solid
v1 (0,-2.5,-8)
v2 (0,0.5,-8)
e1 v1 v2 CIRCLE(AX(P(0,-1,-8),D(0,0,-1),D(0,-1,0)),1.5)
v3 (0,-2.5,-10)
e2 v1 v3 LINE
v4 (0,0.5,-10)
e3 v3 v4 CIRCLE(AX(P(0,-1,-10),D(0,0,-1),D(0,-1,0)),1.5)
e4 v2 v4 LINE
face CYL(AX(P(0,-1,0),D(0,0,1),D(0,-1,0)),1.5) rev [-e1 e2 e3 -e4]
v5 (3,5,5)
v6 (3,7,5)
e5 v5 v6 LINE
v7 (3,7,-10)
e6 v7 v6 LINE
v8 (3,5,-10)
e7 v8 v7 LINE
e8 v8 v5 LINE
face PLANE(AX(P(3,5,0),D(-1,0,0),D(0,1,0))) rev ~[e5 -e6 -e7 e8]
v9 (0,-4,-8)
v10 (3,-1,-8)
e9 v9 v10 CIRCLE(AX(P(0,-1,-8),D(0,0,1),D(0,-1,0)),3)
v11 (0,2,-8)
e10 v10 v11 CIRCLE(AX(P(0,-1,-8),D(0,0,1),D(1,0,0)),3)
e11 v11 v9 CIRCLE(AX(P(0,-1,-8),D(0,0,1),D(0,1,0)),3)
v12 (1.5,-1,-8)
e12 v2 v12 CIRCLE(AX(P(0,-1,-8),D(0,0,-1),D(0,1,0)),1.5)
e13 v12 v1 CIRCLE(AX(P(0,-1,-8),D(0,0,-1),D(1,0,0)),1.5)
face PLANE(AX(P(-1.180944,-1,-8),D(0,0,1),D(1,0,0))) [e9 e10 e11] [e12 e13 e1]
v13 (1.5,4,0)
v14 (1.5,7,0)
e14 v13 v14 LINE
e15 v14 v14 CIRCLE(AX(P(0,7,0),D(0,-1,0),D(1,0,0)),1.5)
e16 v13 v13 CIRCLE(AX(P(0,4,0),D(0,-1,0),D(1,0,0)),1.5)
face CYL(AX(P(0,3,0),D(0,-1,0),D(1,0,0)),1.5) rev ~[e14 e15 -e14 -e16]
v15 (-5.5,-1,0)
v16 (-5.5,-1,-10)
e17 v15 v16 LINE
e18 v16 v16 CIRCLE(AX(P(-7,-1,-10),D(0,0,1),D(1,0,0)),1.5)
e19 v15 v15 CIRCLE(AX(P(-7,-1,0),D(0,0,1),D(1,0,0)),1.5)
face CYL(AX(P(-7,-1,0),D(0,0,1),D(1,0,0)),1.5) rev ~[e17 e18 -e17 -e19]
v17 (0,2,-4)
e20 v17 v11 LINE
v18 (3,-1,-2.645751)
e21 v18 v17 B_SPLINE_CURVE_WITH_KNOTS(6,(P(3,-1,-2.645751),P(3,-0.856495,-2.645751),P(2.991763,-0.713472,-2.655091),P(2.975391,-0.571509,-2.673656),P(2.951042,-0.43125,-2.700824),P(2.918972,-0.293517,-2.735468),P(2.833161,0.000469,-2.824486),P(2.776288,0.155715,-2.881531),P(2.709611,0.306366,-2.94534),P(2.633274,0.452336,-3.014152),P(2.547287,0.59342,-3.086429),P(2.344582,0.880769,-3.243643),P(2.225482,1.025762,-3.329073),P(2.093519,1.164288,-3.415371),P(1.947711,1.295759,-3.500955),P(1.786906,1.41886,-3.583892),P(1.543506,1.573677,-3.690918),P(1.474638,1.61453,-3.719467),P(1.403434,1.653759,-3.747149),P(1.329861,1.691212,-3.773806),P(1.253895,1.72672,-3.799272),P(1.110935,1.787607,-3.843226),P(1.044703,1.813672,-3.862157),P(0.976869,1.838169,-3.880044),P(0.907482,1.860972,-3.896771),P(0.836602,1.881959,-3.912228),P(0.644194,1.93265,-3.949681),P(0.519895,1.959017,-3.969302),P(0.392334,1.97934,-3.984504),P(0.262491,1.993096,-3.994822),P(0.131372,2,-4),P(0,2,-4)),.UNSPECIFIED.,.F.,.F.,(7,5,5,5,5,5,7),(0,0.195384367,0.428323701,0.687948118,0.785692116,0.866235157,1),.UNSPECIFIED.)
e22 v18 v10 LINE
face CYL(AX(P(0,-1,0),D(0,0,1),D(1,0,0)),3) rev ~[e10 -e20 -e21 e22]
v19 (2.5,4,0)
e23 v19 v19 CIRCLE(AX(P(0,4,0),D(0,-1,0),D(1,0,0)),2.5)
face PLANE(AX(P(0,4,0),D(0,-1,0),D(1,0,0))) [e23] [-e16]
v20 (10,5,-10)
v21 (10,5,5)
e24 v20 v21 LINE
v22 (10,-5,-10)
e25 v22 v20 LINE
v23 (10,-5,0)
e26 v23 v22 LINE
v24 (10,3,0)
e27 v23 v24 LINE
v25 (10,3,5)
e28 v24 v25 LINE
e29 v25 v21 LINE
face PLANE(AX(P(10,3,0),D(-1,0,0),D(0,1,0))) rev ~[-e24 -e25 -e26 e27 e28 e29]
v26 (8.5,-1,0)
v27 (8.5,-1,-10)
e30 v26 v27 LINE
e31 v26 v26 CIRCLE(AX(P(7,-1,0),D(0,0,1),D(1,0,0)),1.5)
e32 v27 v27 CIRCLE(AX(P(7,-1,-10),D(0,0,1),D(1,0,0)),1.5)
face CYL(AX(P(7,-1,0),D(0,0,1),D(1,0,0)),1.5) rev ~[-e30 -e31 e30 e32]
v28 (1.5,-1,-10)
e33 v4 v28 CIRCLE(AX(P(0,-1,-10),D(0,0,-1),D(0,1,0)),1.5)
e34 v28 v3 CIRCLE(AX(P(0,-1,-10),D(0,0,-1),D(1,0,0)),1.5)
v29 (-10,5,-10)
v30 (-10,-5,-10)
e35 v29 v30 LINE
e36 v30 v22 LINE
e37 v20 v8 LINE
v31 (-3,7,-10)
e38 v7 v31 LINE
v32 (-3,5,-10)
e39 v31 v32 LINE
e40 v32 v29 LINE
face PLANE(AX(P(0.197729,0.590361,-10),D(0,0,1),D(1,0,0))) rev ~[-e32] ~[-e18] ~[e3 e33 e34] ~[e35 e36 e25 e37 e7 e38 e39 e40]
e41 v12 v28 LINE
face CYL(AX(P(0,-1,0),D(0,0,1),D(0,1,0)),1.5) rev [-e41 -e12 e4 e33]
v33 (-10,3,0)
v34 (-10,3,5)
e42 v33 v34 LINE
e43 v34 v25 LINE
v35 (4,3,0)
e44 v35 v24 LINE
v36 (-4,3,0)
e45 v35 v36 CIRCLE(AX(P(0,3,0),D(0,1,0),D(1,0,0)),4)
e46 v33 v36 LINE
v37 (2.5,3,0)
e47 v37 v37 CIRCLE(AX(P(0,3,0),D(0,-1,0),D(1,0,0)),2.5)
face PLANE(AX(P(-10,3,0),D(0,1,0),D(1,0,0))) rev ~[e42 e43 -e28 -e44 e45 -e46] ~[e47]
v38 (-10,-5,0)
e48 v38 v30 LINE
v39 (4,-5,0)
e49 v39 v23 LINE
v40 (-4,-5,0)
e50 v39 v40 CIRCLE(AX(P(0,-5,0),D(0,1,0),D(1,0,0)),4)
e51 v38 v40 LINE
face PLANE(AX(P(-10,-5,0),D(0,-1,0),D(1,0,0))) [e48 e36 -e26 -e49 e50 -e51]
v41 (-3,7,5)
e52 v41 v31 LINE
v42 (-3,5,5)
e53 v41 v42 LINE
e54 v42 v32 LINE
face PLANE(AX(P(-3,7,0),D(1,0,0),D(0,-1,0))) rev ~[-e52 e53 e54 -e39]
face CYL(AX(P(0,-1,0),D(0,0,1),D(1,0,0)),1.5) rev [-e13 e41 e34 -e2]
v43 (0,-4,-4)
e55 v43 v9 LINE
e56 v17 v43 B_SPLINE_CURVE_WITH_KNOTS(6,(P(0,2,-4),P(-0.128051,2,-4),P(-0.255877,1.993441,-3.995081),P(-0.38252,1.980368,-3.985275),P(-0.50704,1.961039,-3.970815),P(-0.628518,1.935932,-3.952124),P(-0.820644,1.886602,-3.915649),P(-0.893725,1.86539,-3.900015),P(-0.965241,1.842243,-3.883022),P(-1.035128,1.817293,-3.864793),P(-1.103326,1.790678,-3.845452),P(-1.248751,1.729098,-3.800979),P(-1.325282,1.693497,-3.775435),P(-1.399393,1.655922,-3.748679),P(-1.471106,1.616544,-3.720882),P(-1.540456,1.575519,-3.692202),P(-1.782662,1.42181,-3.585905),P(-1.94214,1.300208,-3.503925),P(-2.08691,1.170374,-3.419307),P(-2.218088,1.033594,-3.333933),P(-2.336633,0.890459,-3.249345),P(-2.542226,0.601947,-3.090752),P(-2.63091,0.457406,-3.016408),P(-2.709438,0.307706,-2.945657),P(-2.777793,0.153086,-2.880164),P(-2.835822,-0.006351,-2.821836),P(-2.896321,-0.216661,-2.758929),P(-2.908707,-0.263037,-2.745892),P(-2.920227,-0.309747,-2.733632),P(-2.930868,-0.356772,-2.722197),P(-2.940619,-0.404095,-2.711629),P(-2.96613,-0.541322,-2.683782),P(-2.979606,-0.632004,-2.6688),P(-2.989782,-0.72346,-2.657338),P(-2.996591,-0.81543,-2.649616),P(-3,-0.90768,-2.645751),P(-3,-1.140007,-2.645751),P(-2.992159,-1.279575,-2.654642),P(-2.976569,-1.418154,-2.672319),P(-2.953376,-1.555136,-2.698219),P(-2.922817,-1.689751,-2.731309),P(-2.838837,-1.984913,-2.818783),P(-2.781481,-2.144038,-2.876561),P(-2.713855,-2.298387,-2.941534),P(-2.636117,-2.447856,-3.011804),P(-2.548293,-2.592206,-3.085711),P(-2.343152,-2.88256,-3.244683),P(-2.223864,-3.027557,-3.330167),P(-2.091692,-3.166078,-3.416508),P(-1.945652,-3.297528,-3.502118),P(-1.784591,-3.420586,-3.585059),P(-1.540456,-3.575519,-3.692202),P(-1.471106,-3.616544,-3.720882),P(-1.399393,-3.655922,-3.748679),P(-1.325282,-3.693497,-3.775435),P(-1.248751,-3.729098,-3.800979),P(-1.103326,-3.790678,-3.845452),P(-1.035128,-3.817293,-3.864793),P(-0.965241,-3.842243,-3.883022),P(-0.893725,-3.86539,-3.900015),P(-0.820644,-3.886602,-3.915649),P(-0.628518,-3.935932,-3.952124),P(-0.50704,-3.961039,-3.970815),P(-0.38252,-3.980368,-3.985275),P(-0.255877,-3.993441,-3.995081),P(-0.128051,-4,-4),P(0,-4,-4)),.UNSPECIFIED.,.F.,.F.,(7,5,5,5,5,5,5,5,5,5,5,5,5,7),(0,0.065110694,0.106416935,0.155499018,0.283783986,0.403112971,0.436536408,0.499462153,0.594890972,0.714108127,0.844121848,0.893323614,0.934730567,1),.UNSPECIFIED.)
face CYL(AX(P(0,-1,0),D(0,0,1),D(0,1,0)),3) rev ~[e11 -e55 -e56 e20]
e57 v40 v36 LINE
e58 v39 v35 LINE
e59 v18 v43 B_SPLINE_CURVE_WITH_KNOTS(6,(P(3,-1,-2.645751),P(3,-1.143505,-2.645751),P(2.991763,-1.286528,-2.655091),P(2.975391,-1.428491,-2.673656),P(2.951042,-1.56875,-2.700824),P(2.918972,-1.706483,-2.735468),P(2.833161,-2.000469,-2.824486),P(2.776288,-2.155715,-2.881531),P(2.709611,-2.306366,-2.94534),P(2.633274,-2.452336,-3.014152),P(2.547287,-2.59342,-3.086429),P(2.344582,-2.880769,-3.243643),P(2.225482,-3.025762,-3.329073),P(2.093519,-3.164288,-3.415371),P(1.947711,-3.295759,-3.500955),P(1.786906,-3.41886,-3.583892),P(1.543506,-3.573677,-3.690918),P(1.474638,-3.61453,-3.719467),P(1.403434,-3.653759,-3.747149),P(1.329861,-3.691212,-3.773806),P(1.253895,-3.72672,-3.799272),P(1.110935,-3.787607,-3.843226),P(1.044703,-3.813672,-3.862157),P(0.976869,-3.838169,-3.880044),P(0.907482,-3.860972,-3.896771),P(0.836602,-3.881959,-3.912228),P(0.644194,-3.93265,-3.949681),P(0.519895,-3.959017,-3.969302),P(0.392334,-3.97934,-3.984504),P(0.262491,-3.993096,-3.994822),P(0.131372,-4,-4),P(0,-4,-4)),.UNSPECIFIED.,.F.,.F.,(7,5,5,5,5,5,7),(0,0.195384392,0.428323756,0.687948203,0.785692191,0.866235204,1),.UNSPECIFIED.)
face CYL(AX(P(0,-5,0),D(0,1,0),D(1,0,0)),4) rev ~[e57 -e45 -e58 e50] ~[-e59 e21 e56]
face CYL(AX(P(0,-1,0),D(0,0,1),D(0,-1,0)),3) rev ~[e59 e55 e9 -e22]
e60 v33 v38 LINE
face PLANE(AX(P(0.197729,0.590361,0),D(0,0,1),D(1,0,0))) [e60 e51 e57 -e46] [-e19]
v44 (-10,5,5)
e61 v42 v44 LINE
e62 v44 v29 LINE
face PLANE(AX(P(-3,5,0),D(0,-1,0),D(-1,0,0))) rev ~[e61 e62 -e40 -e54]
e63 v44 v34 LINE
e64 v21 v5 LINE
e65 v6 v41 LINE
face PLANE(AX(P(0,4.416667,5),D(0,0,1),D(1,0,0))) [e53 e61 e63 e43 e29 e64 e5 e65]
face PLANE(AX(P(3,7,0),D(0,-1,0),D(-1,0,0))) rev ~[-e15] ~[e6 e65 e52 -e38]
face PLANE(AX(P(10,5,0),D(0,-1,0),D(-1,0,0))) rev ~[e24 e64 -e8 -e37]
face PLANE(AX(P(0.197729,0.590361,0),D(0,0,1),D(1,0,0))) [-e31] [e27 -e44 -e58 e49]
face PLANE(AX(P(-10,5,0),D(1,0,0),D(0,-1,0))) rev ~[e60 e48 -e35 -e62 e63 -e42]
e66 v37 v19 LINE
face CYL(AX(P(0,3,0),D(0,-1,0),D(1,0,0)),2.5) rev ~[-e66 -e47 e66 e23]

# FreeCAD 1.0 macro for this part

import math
import FreeCAD as App
import Part
import Sketcher

V = App.Vector

doc = App.newDocument("Part")
params = doc.addObject("Spreadsheet::Sheet", "Params")
for row, (alias, value) in enumerate([
    ("sketch1_diameter", "3 mm"),
    ("sketch1_width", "7 mm"),
    ("sketch1_width2", "6 mm"),
    ("sketch1_height", "10 mm"),
    ("sketch1_height2", "2 mm"),
    ("pad1_length", "10 mm"),
    ("sketch2_radius", "1.5 mm"),
    ("sketch2_width", "4 mm"),
    ("sketch2_height", "8 mm"),
    ("groove_angle", "360 deg"),
    ("sketch3_radius", "3 mm"),
    ("sketch3_radius2", "1.5 mm"),
    ("pocket1_length", "8 mm"),
    ("sketch4_width", "20 mm"),
    ("sketch4_width2", "7 mm"),
    ("sketch4_height", "2 mm"),
    ("pad2_length", "5 mm"),
    ("sketch5_diameter", "3 mm"),
    ("sketch6_diameter", "5 mm"),
    ("sketch6_diameter2", "3 mm"),
    ("pocket3_length", "1 mm"),
], start=1):
    params.set(f"A{row}", alias)
    params.set(f"B{row}", "=" + value)
    params.setAlias(f"B{row}", alias)

body = doc.addObject("PartDesign::Body", "Body")

# Sketch on XY plane
sketch1 = body.newObject("Sketcher::SketchObject", "Sketch")
sketch1.AttachmentSupport = (doc.getObject("XY_Plane"), [""])
sketch1.MapMode = "FlatFace"
sketch1.addGeometry(Part.LineSegment(V(10, -5, 0), V(10, 5, 0)), False)
sketch1.addGeometry(Part.LineSegment(V(10, 5, 0), V(3, 5, 0)), False)
sketch1.addGeometry(Part.LineSegment(V(3, 5, 0), V(3, 7, 0)), False)
sketch1.addGeometry(Part.LineSegment(V(3, 7, 0), V(-3, 7, 0)), False)
sketch1.addGeometry(Part.LineSegment(V(-3, 7, 0), V(-3, 5, 0)), False)
sketch1.addGeometry(Part.LineSegment(V(-3, 5, 0), V(-10, 5, 0)), False)
sketch1.addGeometry(Part.LineSegment(V(-10, 5, 0), V(-10, -5, 0)), False)
sketch1.addGeometry(Part.LineSegment(V(-10, -5, 0), V(10, -5, 0)), False)
sketch1.addGeometry(Part.ArcOfCircle(Part.Circle(V(0, -1, 0), V(0, 0, 1), 1.5), math.radians(0), math.radians(90)), False)
sketch1.addGeometry(Part.ArcOfCircle(Part.Circle(V(0, -1, 0), V(0, 0, 1), 1.5), math.radians(-90), math.radians(0)), False)
sketch1.addGeometry(Part.ArcOfCircle(Part.Circle(V(0, -1, 0), V(0, 0, 1), 1.5), math.radians(90), math.radians(270)), False)
sketch1.addGeometry(Part.Circle(V(-7, -1, 0), V(0, 0, 1), 1.5), False)
sketch1.addGeometry(Part.Circle(V(7, -1, 0), V(0, 0, 1), 1.5), False)
sketch1.addConstraint(Sketcher.Constraint("Coincident", 0, 2, 1, 1))
sketch1.addConstraint(Sketcher.Constraint("Coincident", 1, 2, 2, 1))
sketch1.addConstraint(Sketcher.Constraint("Coincident", 2, 2, 3, 1))
sketch1.addConstraint(Sketcher.Constraint("Coincident", 3, 2, 4, 1))
sketch1.addConstraint(Sketcher.Constraint("Coincident", 4, 2, 5, 1))
sketch1.addConstraint(Sketcher.Constraint("Coincident", 5, 2, 6, 1))
sketch1.addConstraint(Sketcher.Constraint("Coincident", 6, 2, 7, 1))
sketch1.addConstraint(Sketcher.Constraint("Coincident", 7, 2, 0, 1))
sketch1.addConstraint(Sketcher.Constraint("Tangent", 8, 1, 9, 2))
sketch1.addConstraint(Sketcher.Constraint("Tangent", 9, 1, 10, 2))
sketch1.addConstraint(Sketcher.Constraint("Tangent", 10, 1, 8, 2))
sketch1.addConstraint(Sketcher.Constraint("Vertical", 0))
sketch1.addConstraint(Sketcher.Constraint("Horizontal", 1))
sketch1.addConstraint(Sketcher.Constraint("Vertical", 2))
sketch1.addConstraint(Sketcher.Constraint("Horizontal", 3))
sketch1.addConstraint(Sketcher.Constraint("Vertical", 4))
sketch1.addConstraint(Sketcher.Constraint("Horizontal", 5))
sketch1.addConstraint(Sketcher.Constraint("Vertical", 6))
sketch1.addConstraint(Sketcher.Constraint("Horizontal", 7))
sketch1.addConstraint(Sketcher.Constraint("Equal", 10, 11))
sketch1.addConstraint(Sketcher.Constraint("Equal", 11, 12))
sketch1.addConstraint(Sketcher.Constraint("Symmetric", 0, 2, 6, 2, -1, 1))
sketch1.addConstraint(Sketcher.Constraint("Symmetric", 11, 3, 12, 3, -2))
sketch1.addConstraint(Sketcher.Constraint("Symmetric", 1, 2, 4, 2, -2))
sketch1.addConstraint(Sketcher.Constraint("PointOnObject", 8, 3, -2))
sketch1.addConstraint(Sketcher.Constraint("PointOnObject", 9, 1, -2))
sketch1.addConstraint(Sketcher.Constraint("PointOnObject", 10, 1, -2))
sketch1.addConstraint(Sketcher.Constraint("Horizontal", 10, 3, 11, 3))
sketch1.addConstraint(Sketcher.Constraint("Horizontal", 12, 3, 8, 1))
sketch1.addConstraint(Sketcher.Constraint("Diameter", 11, 3.0))
sketch1.addConstraint(Sketcher.Constraint("DistanceX", 1, 2, 1, 1, 7.0))
sketch1.addConstraint(Sketcher.Constraint("DistanceX", 3, 2, 3, 1, 6.0))
sketch1.addConstraint(Sketcher.Constraint("DistanceY", 0, 1, 0, 2, 10.0))
sketch1.addConstraint(Sketcher.Constraint("DistanceY", 2, 1, 2, 2, 2.0))
sketch1.addConstraint(Sketcher.Constraint("DistanceY", 8, 3, -1, 1, 1.0))
sketch1.addConstraint(Sketcher.Constraint("DistanceX", 11, 3, -1, 1, 7.0))
sketch1.setExpression("Constraints[29]", "Params.sketch1_diameter")
sketch1.setExpression("Constraints[30]", "Params.sketch1_width")
sketch1.setExpression("Constraints[31]", "Params.sketch1_width2")
sketch1.setExpression("Constraints[32]", "Params.sketch1_height")
sketch1.setExpression("Constraints[33]", "Params.sketch1_height2")
pad1 = body.newObject("PartDesign::Pad", "Pad")
pad1.Profile = sketch1
pad1.setExpression("Length", "Params.pad1_length")
pad1.Reversed = True

# Sketch on XY plane
sketch2 = body.newObject("Sketcher::SketchObject", "Sketch001")
sketch2.AttachmentSupport = (doc.getObject("XY_Plane"), [""])
sketch2.MapMode = "FlatFace"
sketch2.addGeometry(Part.LineSegment(V(0, -5, 0), V(4, -5, 0)), False)
sketch2.addGeometry(Part.LineSegment(V(4, -5, 0), V(4, 3, 0)), False)
sketch2.addGeometry(Part.LineSegment(V(4, 3, 0), V(0, 3, 0)), False)
sketch2.addGeometry(Part.LineSegment(V(0, 3, 0), V(0, 0.5, 0)), False)
sketch2.addGeometry(Part.ArcOfCircle(Part.Circle(V(0, -1, 0), V(0, 0, 1), 1.5), math.radians(0), math.radians(90)), False)
sketch2.addGeometry(Part.ArcOfCircle(Part.Circle(V(0, -1, 0), V(0, 0, 1), 1.5), math.radians(-90), math.radians(0)), False)
sketch2.addGeometry(Part.LineSegment(V(0, -2.5, 0), V(0, -5, 0)), False)
sketch2.addConstraint(Sketcher.Constraint("Coincident", 0, 2, 1, 1))
sketch2.addConstraint(Sketcher.Constraint("Coincident", 1, 2, 2, 1))
sketch2.addConstraint(Sketcher.Constraint("Coincident", 2, 2, 3, 1))
sketch2.addConstraint(Sketcher.Constraint("Coincident", 3, 2, 4, 2))
sketch2.addConstraint(Sketcher.Constraint("Tangent", 4, 1, 5, 2))
sketch2.addConstraint(Sketcher.Constraint("Coincident", 5, 1, 6, 1))
sketch2.addConstraint(Sketcher.Constraint("Coincident", 6, 2, 0, 1))
sketch2.addConstraint(Sketcher.Constraint("Horizontal", 0))
sketch2.addConstraint(Sketcher.Constraint("Vertical", 1))
sketch2.addConstraint(Sketcher.Constraint("Horizontal", 2))
sketch2.addConstraint(Sketcher.Constraint("Vertical", 3))
sketch2.addConstraint(Sketcher.Constraint("Vertical", 6))
sketch2.addConstraint(Sketcher.Constraint("Equal", 4, 5))
sketch2.addConstraint(Sketcher.Constraint("PointOnObject", 4, 3, -2))
sketch2.addConstraint(Sketcher.Constraint("PointOnObject", 2, 2, -2))
sketch2.addConstraint(Sketcher.Constraint("PointOnObject", 5, 1, -2))
sketch2.addConstraint(Sketcher.Constraint("Horizontal", 5, 3, 4, 1))
sketch2.addConstraint(Sketcher.Constraint("Equal", 3, 6))
sketch2.addConstraint(Sketcher.Constraint("Radius", 4, 1.5))
sketch2.addConstraint(Sketcher.Constraint("DistanceX", 0, 1, 0, 2, 4.0))
sketch2.addConstraint(Sketcher.Constraint("DistanceY", 1, 1, 1, 2, 8.0))
sketch2.addConstraint(Sketcher.Constraint("DistanceY", 4, 3, -1, 1, 1.0))
sketch2.setExpression("Constraints[18]", "Params.sketch2_radius")
sketch2.setExpression("Constraints[19]", "Params.sketch2_width")
sketch2.setExpression("Constraints[20]", "Params.sketch2_height")
groove = body.newObject("PartDesign::Groove", "Groove")
groove.Profile = sketch2
groove.ReferenceAxis = (sketch2, ["V_Axis"])
groove.setExpression("Angle", "Params.groove_angle")

# Sketch on XY plane
sketch3 = body.newObject("Sketcher::SketchObject", "Sketch002")
sketch3.AttachmentSupport = (doc.getObject("XY_Plane"), [""])
sketch3.MapMode = "FlatFace"
sketch3.addGeometry(Part.ArcOfCircle(Part.Circle(V(0, -1, 0), V(0, 0, 1), 3), math.radians(90), math.radians(270)), False)
sketch3.addGeometry(Part.ArcOfCircle(Part.Circle(V(0, -1, 0), V(0, 0, 1), 3), math.radians(-90), math.radians(0)), False)
sketch3.addGeometry(Part.ArcOfCircle(Part.Circle(V(0, -1, 0), V(0, 0, 1), 3), math.radians(0), math.radians(90)), False)
sketch3.addGeometry(Part.ArcOfCircle(Part.Circle(V(0, -1, 0), V(0, 0, 1), 1.5), math.radians(90), math.radians(270)), False)
sketch3.addGeometry(Part.ArcOfCircle(Part.Circle(V(0, -1, 0), V(0, 0, 1), 1.5), math.radians(0), math.radians(90)), False)
sketch3.addGeometry(Part.ArcOfCircle(Part.Circle(V(0, -1, 0), V(0, 0, 1), 1.5), math.radians(-90), math.radians(0)), False)
sketch3.addConstraint(Sketcher.Constraint("Tangent", 0, 2, 1, 1))
sketch3.addConstraint(Sketcher.Constraint("Tangent", 1, 2, 2, 1))
sketch3.addConstraint(Sketcher.Constraint("Tangent", 2, 2, 0, 1))
sketch3.addConstraint(Sketcher.Constraint("Tangent", 3, 1, 4, 2))
sketch3.addConstraint(Sketcher.Constraint("Tangent", 4, 1, 5, 2))
sketch3.addConstraint(Sketcher.Constraint("Tangent", 5, 1, 3, 2))
sketch3.addConstraint(Sketcher.Constraint("Coincident", 3, 3, 0, 3))
sketch3.addConstraint(Sketcher.Constraint("PointOnObject", 0, 3, -2))
sketch3.addConstraint(Sketcher.Constraint("PointOnObject", 0, 2, -2))
sketch3.addConstraint(Sketcher.Constraint("PointOnObject", 2, 2, -2))
sketch3.addConstraint(Sketcher.Constraint("PointOnObject", 3, 1, -2))
sketch3.addConstraint(Sketcher.Constraint("PointOnObject", 5, 1, -2))
sketch3.addConstraint(Sketcher.Constraint("Horizontal", 5, 3, 1, 2))
sketch3.addConstraint(Sketcher.Constraint("Horizontal", 1, 2, 4, 1))
sketch3.addConstraint(Sketcher.Constraint("Radius", 0, 3.0))
sketch3.addConstraint(Sketcher.Constraint("Radius", 3, 1.5))
sketch3.addConstraint(Sketcher.Constraint("DistanceY", 0, 3, -1, 1, 1.0))
sketch3.setExpression("Constraints[14]", "Params.sketch3_radius")
sketch3.setExpression("Constraints[15]", "Params.sketch3_radius2")
pocket1 = body.newObject("PartDesign::Pocket", "Pocket")
pocket1.Profile = sketch3
pocket1.setExpression("Length", "Params.pocket1_length")

# Sketch on XY plane
sketch4 = body.newObject("Sketcher::SketchObject", "Sketch003")
sketch4.AttachmentSupport = (doc.getObject("XY_Plane"), [""])
sketch4.MapMode = "FlatFace"
sketch4.addGeometry(Part.LineSegment(V(-10, 5, 0), V(-10, 3, 0)), False)
sketch4.addGeometry(Part.LineSegment(V(-10, 3, 0), V(10, 3, 0)), False)
sketch4.addGeometry(Part.LineSegment(V(10, 3, 0), V(10, 5, 0)), False)
sketch4.addGeometry(Part.LineSegment(V(10, 5, 0), V(3, 5, 0)), False)
sketch4.addGeometry(Part.LineSegment(V(3, 5, 0), V(3, 7, 0)), False)
sketch4.addGeometry(Part.LineSegment(V(3, 7, 0), V(-3, 7, 0)), False)
sketch4.addGeometry(Part.LineSegment(V(-3, 7, 0), V(-3, 5, 0)), False)
sketch4.addGeometry(Part.LineSegment(V(-3, 5, 0), V(-10, 5, 0)), False)
sketch4.addConstraint(Sketcher.Constraint("Coincident", 0, 2, 1, 1))
sketch4.addConstraint(Sketcher.Constraint("Coincident", 1, 2, 2, 1))
sketch4.addConstraint(Sketcher.Constraint("Coincident", 2, 2, 3, 1))
sketch4.addConstraint(Sketcher.Constraint("Coincident", 3, 2, 4, 1))
sketch4.addConstraint(Sketcher.Constraint("Coincident", 4, 2, 5, 1))
sketch4.addConstraint(Sketcher.Constraint("Coincident", 5, 2, 6, 1))
sketch4.addConstraint(Sketcher.Constraint("Coincident", 6, 2, 7, 1))
sketch4.addConstraint(Sketcher.Constraint("Coincident", 7, 2, 0, 1))
sketch4.addConstraint(Sketcher.Constraint("Vertical", 0))
sketch4.addConstraint(Sketcher.Constraint("Horizontal", 1))
sketch4.addConstraint(Sketcher.Constraint("Vertical", 2))
sketch4.addConstraint(Sketcher.Constraint("Horizontal", 3))
sketch4.addConstraint(Sketcher.Constraint("Vertical", 4))
sketch4.addConstraint(Sketcher.Constraint("Horizontal", 5))
sketch4.addConstraint(Sketcher.Constraint("Vertical", 6))
sketch4.addConstraint(Sketcher.Constraint("Horizontal", 7))
sketch4.addConstraint(Sketcher.Constraint("Symmetric", 3, 2, 6, 2, -2))
sketch4.addConstraint(Sketcher.Constraint("Equal", 3, 7))
sketch4.addConstraint(Sketcher.Constraint("Equal", 2, 4))
sketch4.addConstraint(Sketcher.Constraint("DistanceX", 1, 1, 1, 2, 20.0))
sketch4.addConstraint(Sketcher.Constraint("DistanceX", 3, 2, 3, 1, 7.0))
sketch4.addConstraint(Sketcher.Constraint("DistanceY", 0, 2, 0, 1, 2.0))
sketch4.addConstraint(Sketcher.Constraint("DistanceY", -1, 1, 0, 2, 3.0))
sketch4.setExpression("Constraints[19]", "Params.sketch4_width")
sketch4.setExpression("Constraints[20]", "Params.sketch4_width2")
sketch4.setExpression("Constraints[21]", "Params.sketch4_height")
pad2 = body.newObject("PartDesign::Pad", "Pad001")
pad2.Profile = sketch4
pad2.setExpression("Length", "Params.pad2_length")

# Sketch on XZ plane
sketch5 = body.newObject("Sketcher::SketchObject", "Sketch004")
sketch5.AttachmentSupport = (doc.getObject("XZ_Plane"), [""])
sketch5.MapMode = "FlatFace"
sketch5.AttachmentOffset = App.Placement(V(0, 0, -3), App.Rotation())
sketch5.addGeometry(Part.Circle(V(0, 0, 0), V(0, 0, 1), 1.5), False)
sketch5.addConstraint(Sketcher.Constraint("Coincident", 0, 3, -1, 1))
sketch5.addConstraint(Sketcher.Constraint("Diameter", 0, 3.0))
sketch5.setExpression("Constraints[1]", "Params.sketch5_diameter")
pocket2 = body.newObject("PartDesign::Pocket", "Pocket001")
pocket2.Profile = sketch5
pocket2.Type = "ThroughAll"

# Sketch on XZ plane
sketch6 = body.newObject("Sketcher::SketchObject", "Sketch005")
sketch6.AttachmentSupport = (doc.getObject("XZ_Plane"), [""])
sketch6.MapMode = "FlatFace"
sketch6.AttachmentOffset = App.Placement(V(0, 0, -3), App.Rotation())
sketch6.addGeometry(Part.Circle(V(0, 0, 0), V(0, 0, 1), 2.5), False)
sketch6.addGeometry(Part.Circle(V(0, 0, 0), V(0, 0, 1), 1.5), False)
sketch6.addConstraint(Sketcher.Constraint("Coincident", 0, 3, -1, 1))
sketch6.addConstraint(Sketcher.Constraint("Coincident", 1, 3, -1, 1))
sketch6.addConstraint(Sketcher.Constraint("Diameter", 0, 5.0))
sketch6.addConstraint(Sketcher.Constraint("Diameter", 1, 3.0))
sketch6.setExpression("Constraints[2]", "Params.sketch6_diameter")
sketch6.setExpression("Constraints[3]", "Params.sketch6_diameter2")
pocket3 = body.newObject("PartDesign::Pocket", "Pocket002")
pocket3.Profile = sketch6
pocket3.setExpression("Length", "Params.pocket3_length")

doc.recompute()
